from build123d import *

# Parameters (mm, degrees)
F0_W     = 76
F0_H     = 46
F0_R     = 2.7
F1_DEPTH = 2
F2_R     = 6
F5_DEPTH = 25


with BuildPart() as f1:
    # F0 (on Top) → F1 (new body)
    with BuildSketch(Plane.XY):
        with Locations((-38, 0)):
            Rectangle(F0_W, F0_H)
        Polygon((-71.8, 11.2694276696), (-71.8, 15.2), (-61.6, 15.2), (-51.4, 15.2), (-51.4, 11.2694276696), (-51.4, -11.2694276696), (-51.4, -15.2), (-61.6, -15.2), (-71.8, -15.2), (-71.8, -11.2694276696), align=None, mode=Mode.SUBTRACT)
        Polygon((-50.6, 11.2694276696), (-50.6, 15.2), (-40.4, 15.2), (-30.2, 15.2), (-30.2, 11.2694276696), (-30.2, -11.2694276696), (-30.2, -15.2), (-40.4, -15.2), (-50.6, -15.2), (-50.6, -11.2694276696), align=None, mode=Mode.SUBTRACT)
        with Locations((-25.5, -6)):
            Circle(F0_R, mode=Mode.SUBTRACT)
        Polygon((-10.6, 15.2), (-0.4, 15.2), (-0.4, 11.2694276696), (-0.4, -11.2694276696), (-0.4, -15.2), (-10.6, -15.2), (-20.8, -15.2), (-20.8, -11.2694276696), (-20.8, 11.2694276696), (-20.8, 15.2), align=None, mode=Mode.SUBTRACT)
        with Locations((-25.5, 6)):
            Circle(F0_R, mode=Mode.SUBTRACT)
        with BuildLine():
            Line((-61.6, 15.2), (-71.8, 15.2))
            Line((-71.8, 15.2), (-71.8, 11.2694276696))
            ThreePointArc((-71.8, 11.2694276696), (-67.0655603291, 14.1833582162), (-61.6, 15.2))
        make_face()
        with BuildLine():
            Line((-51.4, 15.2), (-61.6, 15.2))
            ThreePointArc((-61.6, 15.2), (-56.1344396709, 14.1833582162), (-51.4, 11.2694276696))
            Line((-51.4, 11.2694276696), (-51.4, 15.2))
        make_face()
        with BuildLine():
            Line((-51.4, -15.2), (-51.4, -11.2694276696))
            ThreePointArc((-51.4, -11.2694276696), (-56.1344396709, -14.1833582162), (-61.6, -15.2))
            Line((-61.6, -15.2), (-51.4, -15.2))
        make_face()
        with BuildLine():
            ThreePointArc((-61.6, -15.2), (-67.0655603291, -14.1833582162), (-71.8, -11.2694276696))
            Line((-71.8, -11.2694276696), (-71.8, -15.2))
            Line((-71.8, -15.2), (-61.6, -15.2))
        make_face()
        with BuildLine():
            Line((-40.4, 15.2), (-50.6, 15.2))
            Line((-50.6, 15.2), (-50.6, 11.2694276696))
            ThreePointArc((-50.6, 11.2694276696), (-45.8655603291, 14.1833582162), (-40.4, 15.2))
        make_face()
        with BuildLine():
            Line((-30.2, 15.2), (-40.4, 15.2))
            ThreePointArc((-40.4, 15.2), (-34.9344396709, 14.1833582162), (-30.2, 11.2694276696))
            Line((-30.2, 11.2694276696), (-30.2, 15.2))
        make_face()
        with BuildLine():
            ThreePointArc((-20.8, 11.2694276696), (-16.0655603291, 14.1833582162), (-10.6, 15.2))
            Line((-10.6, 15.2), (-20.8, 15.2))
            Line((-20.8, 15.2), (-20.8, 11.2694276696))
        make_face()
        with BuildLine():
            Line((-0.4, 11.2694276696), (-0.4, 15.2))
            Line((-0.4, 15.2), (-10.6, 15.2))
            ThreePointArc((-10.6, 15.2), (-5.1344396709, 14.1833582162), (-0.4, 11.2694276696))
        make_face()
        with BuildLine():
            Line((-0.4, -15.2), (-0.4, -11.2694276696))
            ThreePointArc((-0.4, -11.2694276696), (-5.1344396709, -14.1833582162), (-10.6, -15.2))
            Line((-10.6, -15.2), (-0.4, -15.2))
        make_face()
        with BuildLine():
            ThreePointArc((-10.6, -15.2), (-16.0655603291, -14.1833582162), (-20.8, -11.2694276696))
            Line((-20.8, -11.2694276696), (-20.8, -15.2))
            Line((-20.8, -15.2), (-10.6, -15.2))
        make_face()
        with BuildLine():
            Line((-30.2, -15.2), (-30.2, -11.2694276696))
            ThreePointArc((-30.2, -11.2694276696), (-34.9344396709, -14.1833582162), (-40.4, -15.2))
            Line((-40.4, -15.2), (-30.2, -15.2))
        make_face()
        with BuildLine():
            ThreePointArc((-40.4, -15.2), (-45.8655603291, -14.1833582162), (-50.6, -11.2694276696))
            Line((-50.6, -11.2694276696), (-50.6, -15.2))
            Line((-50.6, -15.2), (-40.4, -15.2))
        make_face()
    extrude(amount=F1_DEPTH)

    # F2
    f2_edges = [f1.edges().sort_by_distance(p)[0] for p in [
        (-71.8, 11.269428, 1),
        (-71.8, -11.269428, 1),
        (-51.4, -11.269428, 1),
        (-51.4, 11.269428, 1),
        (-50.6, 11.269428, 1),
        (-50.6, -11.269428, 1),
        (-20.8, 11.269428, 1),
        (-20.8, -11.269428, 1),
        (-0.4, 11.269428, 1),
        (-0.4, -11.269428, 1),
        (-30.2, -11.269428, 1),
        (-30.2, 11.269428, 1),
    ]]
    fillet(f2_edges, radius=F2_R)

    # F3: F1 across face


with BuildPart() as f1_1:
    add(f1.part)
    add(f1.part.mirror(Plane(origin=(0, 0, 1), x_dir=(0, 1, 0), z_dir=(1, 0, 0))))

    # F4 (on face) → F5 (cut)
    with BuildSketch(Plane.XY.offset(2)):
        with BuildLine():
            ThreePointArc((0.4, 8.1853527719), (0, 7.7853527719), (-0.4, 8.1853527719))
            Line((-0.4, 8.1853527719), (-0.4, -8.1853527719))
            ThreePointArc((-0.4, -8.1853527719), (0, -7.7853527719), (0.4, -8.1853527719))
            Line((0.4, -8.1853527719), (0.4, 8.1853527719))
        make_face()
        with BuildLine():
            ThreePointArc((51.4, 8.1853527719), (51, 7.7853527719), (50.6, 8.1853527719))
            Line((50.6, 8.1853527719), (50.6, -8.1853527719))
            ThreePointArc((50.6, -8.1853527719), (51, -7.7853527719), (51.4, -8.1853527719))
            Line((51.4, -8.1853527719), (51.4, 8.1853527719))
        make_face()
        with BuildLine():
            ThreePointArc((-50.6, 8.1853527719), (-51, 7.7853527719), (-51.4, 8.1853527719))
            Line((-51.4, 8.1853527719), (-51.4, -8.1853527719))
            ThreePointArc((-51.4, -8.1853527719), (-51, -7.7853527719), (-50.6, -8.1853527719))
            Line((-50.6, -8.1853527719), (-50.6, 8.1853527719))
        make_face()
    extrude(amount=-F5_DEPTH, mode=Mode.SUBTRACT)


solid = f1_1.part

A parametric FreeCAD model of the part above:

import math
import FreeCAD as App
import Part
import Sketcher

V = App.Vector


def edges_at(feature, points):
    """Names of the edges that pass closest to the given points."""
    edges = feature.Shape.Edges
    near = lambda p: min(range(len(edges)), key=lambda i: edges[i].distToShape(Part.Vertex(*p))[0])
    return sorted({f"Edge{near(p) + 1}" for p in points})


def add_polygon(sketch, points):
    """Adds a closed chain of lines whose ends are joined by coincident constraints."""
    first, n = sketch.GeometryCount, len(points)
    for a, b in zip(points, points[1:] + points[:1]):
        sketch.addGeometry(Part.LineSegment(App.Vector(*a, 0), App.Vector(*b, 0)), False)
    for i in range(n):
        sketch.addConstraint(Sketcher.Constraint("Coincident", first + i, 2, first + (i + 1) % n, 1))

doc = App.newDocument("Part")
body = doc.addObject("PartDesign::Body", "Body")

sketch1 = body.newObject("Sketcher::SketchObject", "Sketch")
sketch1.AttachmentSupport = (doc.getObject("XY_Plane"), [""])
sketch1.MapMode = "FlatFace"
add_polygon(sketch1, [(-76, 23), (-76, -23), (0, -23), (0, 23)])
sketch1.addGeometry(Part.LineSegment(V(-71.8, -11.3, 0), V(-71.8, 11.3, 0)), False)
sketch1.addGeometry(Part.ArcOfCircle(Part.Circle(V(-61.6, 0, 0), V(0, 0, 1), 15.2), math.radians(48), math.radians(132)), False)
sketch1.addGeometry(Part.LineSegment(V(-51.4, 11.3, 0), V(-51.4, -11.3, 0)), False)
sketch1.addGeometry(Part.ArcOfCircle(Part.Circle(V(-61.6, 0, 0), V(0, 0, 1), 15.2), math.radians(-132), math.radians(-48)), False)
sketch1.addGeometry(Part.LineSegment(V(-50.6, -11.3, 0), V(-50.6, 11.3, 0)), False)
sketch1.addGeometry(Part.ArcOfCircle(Part.Circle(V(-40.4, 0, 0), V(0, 0, 1), 15.2), math.radians(48), math.radians(132)), False)
sketch1.addGeometry(Part.LineSegment(V(-30.2, 11.3, 0), V(-30.2, -11.3, 0)), False)
sketch1.addGeometry(Part.ArcOfCircle(Part.Circle(V(-40.4, 0, 0), V(0, 0, 1), 15.2), math.radians(-132), math.radians(-48)), False)
sketch1.addGeometry(Part.Circle(V(-25.5, -6, 0), V(0, 0, 1), 2.7), False)
sketch1.addGeometry(Part.LineSegment(V(-0.4, 11.3, 0), V(-0.4, -11.3, 0)), False)
sketch1.addGeometry(Part.ArcOfCircle(Part.Circle(V(-10.6, 0, 0), V(0, 0, 1), 15.2), math.radians(-132), math.radians(-48)), False)
sketch1.addGeometry(Part.LineSegment(V(-20.8, -11.3, 0), V(-20.8, 11.3, 0)), False)
sketch1.addGeometry(Part.ArcOfCircle(Part.Circle(V(-10.6, 0, 0), V(0, 0, 1), 15.2), math.radians(48), math.radians(132)), False)
sketch1.addGeometry(Part.Circle(V(-25.5, 6, 0), V(0, 0, 1), 2.7), False)
sketch1.addConstraint(Sketcher.Constraint("Coincident", 4, 2, 5, 2))
sketch1.addConstraint(Sketcher.Constraint("Coincident", 5, 1, 6, 1))
sketch1.addConstraint(Sketcher.Constraint("Coincident", 6, 2, 7, 2))
sketch1.addConstraint(Sketcher.Constraint("Coincident", 7, 1, 4, 1))
sketch1.addConstraint(Sketcher.Constraint("Coincident", 8, 2, 9, 2))
sketch1.addConstraint(Sketcher.Constraint("Coincident", 9, 1, 10, 1))
sketch1.addConstraint(Sketcher.Constraint("Coincident", 10, 2, 11, 2))
sketch1.addConstraint(Sketcher.Constraint("Coincident", 11, 1, 8, 1))
sketch1.addConstraint(Sketcher.Constraint("Coincident", 13, 2, 14, 2))
sketch1.addConstraint(Sketcher.Constraint("Coincident", 14, 1, 15, 1))
sketch1.addConstraint(Sketcher.Constraint("Coincident", 15, 2, 16, 2))
sketch1.addConstraint(Sketcher.Constraint("Coincident", 16, 1, 13, 1))
sketch1.addConstraint(Sketcher.Constraint("Vertical", 0))
sketch1.addConstraint(Sketcher.Constraint("Horizontal", 1))
sketch1.addConstraint(Sketcher.Constraint("Vertical", 2))
sketch1.addConstraint(Sketcher.Constraint("Horizontal", 3))
sketch1.addConstraint(Sketcher.Constraint("Vertical", 4))
sketch1.addConstraint(Sketcher.Constraint("Vertical", 6))
sketch1.addConstraint(Sketcher.Constraint("Vertical", 8))
sketch1.addConstraint(Sketcher.Constraint("Vertical", 10))
sketch1.addConstraint(Sketcher.Constraint("Vertical", 13))
sketch1.addConstraint(Sketcher.Constraint("Vertical", 15))
sketch1.addConstraint(Sketcher.Constraint("Coincident", 7, 3, 5, 3))
sketch1.addConstraint(Sketcher.Constraint("Coincident", 11, 3, 9, 3))
sketch1.addConstraint(Sketcher.Constraint("Coincident", 16, 3, 14, 3))
sketch1.addConstraint(Sketcher.Constraint("Equal", 5, 7))
sketch1.addConstraint(Sketcher.Constraint("Equal", 7, 9))
sketch1.addConstraint(Sketcher.Constraint("Equal", 9, 11))
sketch1.addConstraint(Sketcher.Constraint("Equal", 11, 14))
sketch1.addConstraint(Sketcher.Constraint("Equal", 14, 16))
sketch1.addConstraint(Sketcher.Constraint("Equal", 12, 17))
sketch1.addConstraint(Sketcher.Constraint("Symmetric", 1, 2, 2, 2, -1, 1))
sketch1.addConstraint(Sketcher.Constraint("Symmetric", 12, 3, 17, 3, -1))
sketch1.addConstraint(Sketcher.Constraint("PointOnObject", 5, 3, -1))
sketch1.addConstraint(Sketcher.Constraint("PointOnObject", 9, 3, -1))
sketch1.addConstraint(Sketcher.Constraint("PointOnObject", 14, 3, -1))
sketch1.addConstraint(Sketcher.Constraint("Horizontal", 4, 2, 5, 1))
sketch1.addConstraint(Sketcher.Constraint("Horizontal", 5, 1, 8, 2))
sketch1.addConstraint(Sketcher.Constraint("Horizontal", 8, 2, 9, 1))
sketch1.addConstraint(Sketcher.Constraint("Horizontal", 11, 1, 13, 2))
sketch1.addConstraint(Sketcher.Constraint("Horizontal", 13, 2, 14, 1))
sketch1.addConstraint(Sketcher.Constraint("Diameter", 12, 5.4))
sketch1.addConstraint(Sketcher.Constraint("Radius", 5, 15.2))
sketch1.addConstraint(Sketcher.Constraint("DistanceX", 1, 1, 1, 2, 76.0))
sketch1.addConstraint(Sketcher.Constraint("DistanceY", 0, 2, 0, 1, 46.0))
sketch1.addConstraint(Sketcher.Constraint("DistanceY", 12, 3, -1, 1, 6.0))
sketch1.addConstraint(Sketcher.Constraint("DistanceX", 5, 3, 14, 3, 51.0))
sketch1.addConstraint(Sketcher.Constraint("DistanceX", 5, 1, 9, 3, 11.0))
sketch1.addConstraint(Sketcher.Constraint("DistanceX", 5, 3, -1, 1, 61.6))
sketch1.addConstraint(Sketcher.Constraint("DistanceX", 9, 3, -1, 1, 40.4))
sketch1.addConstraint(Sketcher.Constraint("DistanceX", 12, 3, -1, 1, 25.5))
pad1 = body.newObject("PartDesign::Pad", "Pad")
pad1.Profile = sketch1
pad1.Length = 2
doc.recompute()

fillet = body.newObject("PartDesign::Fillet", "Fillet")
fillet.Base = (pad1, edges_at(pad1, [
    (-71.8, 11.269, 1),
    (-71.8, -11.269, 1),
    (-51.4, -11.269, 1),
    (-51.4, 11.269, 1),
    (-50.6, 11.269, 1),
    (-50.6, -11.269, 1),
    (-20.8, 11.269, 1),
    (-20.8, -11.269, 1),
    (-0.4, 11.269, 1),
    (-0.4, -11.269, 1),
    (-30.2, -11.269, 1),
    (-30.2, 11.269, 1),
]))
fillet.Radius = 6
body2 = doc.addObject("PartDesign::Body", "Body001")
doc.recompute()

body2.BaseFeature = body
doc.recompute()

mirroring = doc.addObject("Part::Mirroring", "Mirroring")
mirroring.Source = body
mirroring.Base = V(0, 0, 1)
mirroring.Normal = V(1, 0, 0)
body3 = doc.addObject("PartDesign::Body", "Body002")
body3.BaseFeature = mirroring
boolean = body2.newObject("PartDesign::Boolean", "Boolean")
boolean.Type = "Fuse"
boolean.addObjects([body3])
doc.recompute()

sketch2 = body2.newObject("Sketcher::SketchObject", "Sketch001")
sketch2.AttachmentSupport = (doc.getObject("XY_Plane001"), [""])
sketch2.MapMode = "FlatFace"
sketch2.AttachmentOffset = App.Placement(V(0, 0, 2), App.Rotation())
sketch2.addGeometry(Part.ArcOfCircle(Part.Circle(V(0, 8.19, 0), V(0, 0, 1), 0.4), math.radians(180), math.radians(360)), False)
sketch2.addGeometry(Part.LineSegment(V(-0.4, 8.19, 0), V(-0.4, -8.19, 0)), False)
sketch2.addGeometry(Part.ArcOfCircle(Part.Circle(V(0, -8.19, 0), V(0, 0, 1), 0.4), math.radians(0), math.radians(180)), False)
sketch2.addGeometry(Part.LineSegment(V(0.4, -8.19, 0), V(0.4, 8.19, 0)), False)
sketch2.addGeometry(Part.ArcOfCircle(Part.Circle(V(51, 8.19, 0), V(0, 0, 1), 0.4), math.radians(180), math.radians(360)), False)
sketch2.addGeometry(Part.LineSegment(V(50.6, 8.19, 0), V(50.6, -8.19, 0)), False)
sketch2.addGeometry(Part.ArcOfCircle(Part.Circle(V(51, -8.19, 0), V(0, 0, 1), 0.4), math.radians(0), math.radians(180)), False)
sketch2.addGeometry(Part.LineSegment(V(51.4, -8.19, 0), V(51.4, 8.19, 0)), False)
sketch2.addGeometry(Part.ArcOfCircle(Part.Circle(V(-51, 8.19, 0), V(0, 0, 1), 0.4), math.radians(180), math.radians(360)), False)
sketch2.addGeometry(Part.LineSegment(V(-51.4, 8.19, 0), V(-51.4, -8.19, 0)), False)
sketch2.addGeometry(Part.ArcOfCircle(Part.Circle(V(-51, -8.19, 0), V(0, 0, 1), 0.4), math.radians(0), math.radians(180)), False)
sketch2.addGeometry(Part.LineSegment(V(-50.6, -8.19, 0), V(-50.6, 8.19, 0)), False)
sketch2.addConstraint(Sketcher.Constraint("Tangent", 0, 1, 1, 1))
sketch2.addConstraint(Sketcher.Constraint("Tangent", 1, 2, 2, 2))
sketch2.addConstraint(Sketcher.Constraint("Tangent", 2, 1, 3, 1))
sketch2.addConstraint(Sketcher.Constraint("Tangent", 3, 2, 0, 2))
sketch2.addConstraint(Sketcher.Constraint("Tangent", 4, 1, 5, 1))
sketch2.addConstraint(Sketcher.Constraint("Tangent", 5, 2, 6, 2))
sketch2.addConstraint(Sketcher.Constraint("Tangent", 6, 1, 7, 1))
sketch2.addConstraint(Sketcher.Constraint("Tangent", 7, 2, 4, 2))
sketch2.addConstraint(Sketcher.Constraint("Tangent", 8, 1, 9, 1))
sketch2.addConstraint(Sketcher.Constraint("Tangent", 9, 2, 10, 2))
sketch2.addConstraint(Sketcher.Constraint("Tangent", 10, 1, 11, 1))
sketch2.addConstraint(Sketcher.Constraint("Tangent", 11, 2, 8, 2))
sketch2.addConstraint(Sketcher.Constraint("Vertical", 1))
sketch2.addConstraint(Sketcher.Constraint("Vertical", 3))
sketch2.addConstraint(Sketcher.Constraint("Vertical", 5))
sketch2.addConstraint(Sketcher.Constraint("Vertical", 7))
sketch2.addConstraint(Sketcher.Constraint("Vertical", 9))
sketch2.addConstraint(Sketcher.Constraint("Vertical", 11))
sketch2.addConstraint(Sketcher.Constraint("Equal", 2, 4))
sketch2.addConstraint(Sketcher.Constraint("Equal", 6, 8))
sketch2.addConstraint(Sketcher.Constraint("Symmetric", 0, 3, 2, 3, -1, 1))
sketch2.addConstraint(Sketcher.Constraint("Symmetric", 6, 3, 8, 3, -1, 1))
sketch2.addConstraint(Sketcher.Constraint("Horizontal", 0, 3, 4, 3))
sketch2.addConstraint(Sketcher.Constraint("Horizontal", 2, 3, 6, 3))
sketch2.addConstraint(Sketcher.Constraint("Horizontal", 6, 3, 10, 3))
sketch2.addConstraint(Sketcher.Constraint("Radius", 0, 0.4))
sketch2.addConstraint(Sketcher.Constraint("DistanceX", -1, 1, 4, 3, 51.0))
sketch2.addConstraint(Sketcher.Constraint("DistanceY", 1, 2, 1, 1, 16.370706))
pocket1 = body2.newObject("PartDesign::Pocket", "Pocket")
pocket1.Profile = sketch2
pocket1.Length = 25
mirroring.Visibility = False

doc.recompute()
